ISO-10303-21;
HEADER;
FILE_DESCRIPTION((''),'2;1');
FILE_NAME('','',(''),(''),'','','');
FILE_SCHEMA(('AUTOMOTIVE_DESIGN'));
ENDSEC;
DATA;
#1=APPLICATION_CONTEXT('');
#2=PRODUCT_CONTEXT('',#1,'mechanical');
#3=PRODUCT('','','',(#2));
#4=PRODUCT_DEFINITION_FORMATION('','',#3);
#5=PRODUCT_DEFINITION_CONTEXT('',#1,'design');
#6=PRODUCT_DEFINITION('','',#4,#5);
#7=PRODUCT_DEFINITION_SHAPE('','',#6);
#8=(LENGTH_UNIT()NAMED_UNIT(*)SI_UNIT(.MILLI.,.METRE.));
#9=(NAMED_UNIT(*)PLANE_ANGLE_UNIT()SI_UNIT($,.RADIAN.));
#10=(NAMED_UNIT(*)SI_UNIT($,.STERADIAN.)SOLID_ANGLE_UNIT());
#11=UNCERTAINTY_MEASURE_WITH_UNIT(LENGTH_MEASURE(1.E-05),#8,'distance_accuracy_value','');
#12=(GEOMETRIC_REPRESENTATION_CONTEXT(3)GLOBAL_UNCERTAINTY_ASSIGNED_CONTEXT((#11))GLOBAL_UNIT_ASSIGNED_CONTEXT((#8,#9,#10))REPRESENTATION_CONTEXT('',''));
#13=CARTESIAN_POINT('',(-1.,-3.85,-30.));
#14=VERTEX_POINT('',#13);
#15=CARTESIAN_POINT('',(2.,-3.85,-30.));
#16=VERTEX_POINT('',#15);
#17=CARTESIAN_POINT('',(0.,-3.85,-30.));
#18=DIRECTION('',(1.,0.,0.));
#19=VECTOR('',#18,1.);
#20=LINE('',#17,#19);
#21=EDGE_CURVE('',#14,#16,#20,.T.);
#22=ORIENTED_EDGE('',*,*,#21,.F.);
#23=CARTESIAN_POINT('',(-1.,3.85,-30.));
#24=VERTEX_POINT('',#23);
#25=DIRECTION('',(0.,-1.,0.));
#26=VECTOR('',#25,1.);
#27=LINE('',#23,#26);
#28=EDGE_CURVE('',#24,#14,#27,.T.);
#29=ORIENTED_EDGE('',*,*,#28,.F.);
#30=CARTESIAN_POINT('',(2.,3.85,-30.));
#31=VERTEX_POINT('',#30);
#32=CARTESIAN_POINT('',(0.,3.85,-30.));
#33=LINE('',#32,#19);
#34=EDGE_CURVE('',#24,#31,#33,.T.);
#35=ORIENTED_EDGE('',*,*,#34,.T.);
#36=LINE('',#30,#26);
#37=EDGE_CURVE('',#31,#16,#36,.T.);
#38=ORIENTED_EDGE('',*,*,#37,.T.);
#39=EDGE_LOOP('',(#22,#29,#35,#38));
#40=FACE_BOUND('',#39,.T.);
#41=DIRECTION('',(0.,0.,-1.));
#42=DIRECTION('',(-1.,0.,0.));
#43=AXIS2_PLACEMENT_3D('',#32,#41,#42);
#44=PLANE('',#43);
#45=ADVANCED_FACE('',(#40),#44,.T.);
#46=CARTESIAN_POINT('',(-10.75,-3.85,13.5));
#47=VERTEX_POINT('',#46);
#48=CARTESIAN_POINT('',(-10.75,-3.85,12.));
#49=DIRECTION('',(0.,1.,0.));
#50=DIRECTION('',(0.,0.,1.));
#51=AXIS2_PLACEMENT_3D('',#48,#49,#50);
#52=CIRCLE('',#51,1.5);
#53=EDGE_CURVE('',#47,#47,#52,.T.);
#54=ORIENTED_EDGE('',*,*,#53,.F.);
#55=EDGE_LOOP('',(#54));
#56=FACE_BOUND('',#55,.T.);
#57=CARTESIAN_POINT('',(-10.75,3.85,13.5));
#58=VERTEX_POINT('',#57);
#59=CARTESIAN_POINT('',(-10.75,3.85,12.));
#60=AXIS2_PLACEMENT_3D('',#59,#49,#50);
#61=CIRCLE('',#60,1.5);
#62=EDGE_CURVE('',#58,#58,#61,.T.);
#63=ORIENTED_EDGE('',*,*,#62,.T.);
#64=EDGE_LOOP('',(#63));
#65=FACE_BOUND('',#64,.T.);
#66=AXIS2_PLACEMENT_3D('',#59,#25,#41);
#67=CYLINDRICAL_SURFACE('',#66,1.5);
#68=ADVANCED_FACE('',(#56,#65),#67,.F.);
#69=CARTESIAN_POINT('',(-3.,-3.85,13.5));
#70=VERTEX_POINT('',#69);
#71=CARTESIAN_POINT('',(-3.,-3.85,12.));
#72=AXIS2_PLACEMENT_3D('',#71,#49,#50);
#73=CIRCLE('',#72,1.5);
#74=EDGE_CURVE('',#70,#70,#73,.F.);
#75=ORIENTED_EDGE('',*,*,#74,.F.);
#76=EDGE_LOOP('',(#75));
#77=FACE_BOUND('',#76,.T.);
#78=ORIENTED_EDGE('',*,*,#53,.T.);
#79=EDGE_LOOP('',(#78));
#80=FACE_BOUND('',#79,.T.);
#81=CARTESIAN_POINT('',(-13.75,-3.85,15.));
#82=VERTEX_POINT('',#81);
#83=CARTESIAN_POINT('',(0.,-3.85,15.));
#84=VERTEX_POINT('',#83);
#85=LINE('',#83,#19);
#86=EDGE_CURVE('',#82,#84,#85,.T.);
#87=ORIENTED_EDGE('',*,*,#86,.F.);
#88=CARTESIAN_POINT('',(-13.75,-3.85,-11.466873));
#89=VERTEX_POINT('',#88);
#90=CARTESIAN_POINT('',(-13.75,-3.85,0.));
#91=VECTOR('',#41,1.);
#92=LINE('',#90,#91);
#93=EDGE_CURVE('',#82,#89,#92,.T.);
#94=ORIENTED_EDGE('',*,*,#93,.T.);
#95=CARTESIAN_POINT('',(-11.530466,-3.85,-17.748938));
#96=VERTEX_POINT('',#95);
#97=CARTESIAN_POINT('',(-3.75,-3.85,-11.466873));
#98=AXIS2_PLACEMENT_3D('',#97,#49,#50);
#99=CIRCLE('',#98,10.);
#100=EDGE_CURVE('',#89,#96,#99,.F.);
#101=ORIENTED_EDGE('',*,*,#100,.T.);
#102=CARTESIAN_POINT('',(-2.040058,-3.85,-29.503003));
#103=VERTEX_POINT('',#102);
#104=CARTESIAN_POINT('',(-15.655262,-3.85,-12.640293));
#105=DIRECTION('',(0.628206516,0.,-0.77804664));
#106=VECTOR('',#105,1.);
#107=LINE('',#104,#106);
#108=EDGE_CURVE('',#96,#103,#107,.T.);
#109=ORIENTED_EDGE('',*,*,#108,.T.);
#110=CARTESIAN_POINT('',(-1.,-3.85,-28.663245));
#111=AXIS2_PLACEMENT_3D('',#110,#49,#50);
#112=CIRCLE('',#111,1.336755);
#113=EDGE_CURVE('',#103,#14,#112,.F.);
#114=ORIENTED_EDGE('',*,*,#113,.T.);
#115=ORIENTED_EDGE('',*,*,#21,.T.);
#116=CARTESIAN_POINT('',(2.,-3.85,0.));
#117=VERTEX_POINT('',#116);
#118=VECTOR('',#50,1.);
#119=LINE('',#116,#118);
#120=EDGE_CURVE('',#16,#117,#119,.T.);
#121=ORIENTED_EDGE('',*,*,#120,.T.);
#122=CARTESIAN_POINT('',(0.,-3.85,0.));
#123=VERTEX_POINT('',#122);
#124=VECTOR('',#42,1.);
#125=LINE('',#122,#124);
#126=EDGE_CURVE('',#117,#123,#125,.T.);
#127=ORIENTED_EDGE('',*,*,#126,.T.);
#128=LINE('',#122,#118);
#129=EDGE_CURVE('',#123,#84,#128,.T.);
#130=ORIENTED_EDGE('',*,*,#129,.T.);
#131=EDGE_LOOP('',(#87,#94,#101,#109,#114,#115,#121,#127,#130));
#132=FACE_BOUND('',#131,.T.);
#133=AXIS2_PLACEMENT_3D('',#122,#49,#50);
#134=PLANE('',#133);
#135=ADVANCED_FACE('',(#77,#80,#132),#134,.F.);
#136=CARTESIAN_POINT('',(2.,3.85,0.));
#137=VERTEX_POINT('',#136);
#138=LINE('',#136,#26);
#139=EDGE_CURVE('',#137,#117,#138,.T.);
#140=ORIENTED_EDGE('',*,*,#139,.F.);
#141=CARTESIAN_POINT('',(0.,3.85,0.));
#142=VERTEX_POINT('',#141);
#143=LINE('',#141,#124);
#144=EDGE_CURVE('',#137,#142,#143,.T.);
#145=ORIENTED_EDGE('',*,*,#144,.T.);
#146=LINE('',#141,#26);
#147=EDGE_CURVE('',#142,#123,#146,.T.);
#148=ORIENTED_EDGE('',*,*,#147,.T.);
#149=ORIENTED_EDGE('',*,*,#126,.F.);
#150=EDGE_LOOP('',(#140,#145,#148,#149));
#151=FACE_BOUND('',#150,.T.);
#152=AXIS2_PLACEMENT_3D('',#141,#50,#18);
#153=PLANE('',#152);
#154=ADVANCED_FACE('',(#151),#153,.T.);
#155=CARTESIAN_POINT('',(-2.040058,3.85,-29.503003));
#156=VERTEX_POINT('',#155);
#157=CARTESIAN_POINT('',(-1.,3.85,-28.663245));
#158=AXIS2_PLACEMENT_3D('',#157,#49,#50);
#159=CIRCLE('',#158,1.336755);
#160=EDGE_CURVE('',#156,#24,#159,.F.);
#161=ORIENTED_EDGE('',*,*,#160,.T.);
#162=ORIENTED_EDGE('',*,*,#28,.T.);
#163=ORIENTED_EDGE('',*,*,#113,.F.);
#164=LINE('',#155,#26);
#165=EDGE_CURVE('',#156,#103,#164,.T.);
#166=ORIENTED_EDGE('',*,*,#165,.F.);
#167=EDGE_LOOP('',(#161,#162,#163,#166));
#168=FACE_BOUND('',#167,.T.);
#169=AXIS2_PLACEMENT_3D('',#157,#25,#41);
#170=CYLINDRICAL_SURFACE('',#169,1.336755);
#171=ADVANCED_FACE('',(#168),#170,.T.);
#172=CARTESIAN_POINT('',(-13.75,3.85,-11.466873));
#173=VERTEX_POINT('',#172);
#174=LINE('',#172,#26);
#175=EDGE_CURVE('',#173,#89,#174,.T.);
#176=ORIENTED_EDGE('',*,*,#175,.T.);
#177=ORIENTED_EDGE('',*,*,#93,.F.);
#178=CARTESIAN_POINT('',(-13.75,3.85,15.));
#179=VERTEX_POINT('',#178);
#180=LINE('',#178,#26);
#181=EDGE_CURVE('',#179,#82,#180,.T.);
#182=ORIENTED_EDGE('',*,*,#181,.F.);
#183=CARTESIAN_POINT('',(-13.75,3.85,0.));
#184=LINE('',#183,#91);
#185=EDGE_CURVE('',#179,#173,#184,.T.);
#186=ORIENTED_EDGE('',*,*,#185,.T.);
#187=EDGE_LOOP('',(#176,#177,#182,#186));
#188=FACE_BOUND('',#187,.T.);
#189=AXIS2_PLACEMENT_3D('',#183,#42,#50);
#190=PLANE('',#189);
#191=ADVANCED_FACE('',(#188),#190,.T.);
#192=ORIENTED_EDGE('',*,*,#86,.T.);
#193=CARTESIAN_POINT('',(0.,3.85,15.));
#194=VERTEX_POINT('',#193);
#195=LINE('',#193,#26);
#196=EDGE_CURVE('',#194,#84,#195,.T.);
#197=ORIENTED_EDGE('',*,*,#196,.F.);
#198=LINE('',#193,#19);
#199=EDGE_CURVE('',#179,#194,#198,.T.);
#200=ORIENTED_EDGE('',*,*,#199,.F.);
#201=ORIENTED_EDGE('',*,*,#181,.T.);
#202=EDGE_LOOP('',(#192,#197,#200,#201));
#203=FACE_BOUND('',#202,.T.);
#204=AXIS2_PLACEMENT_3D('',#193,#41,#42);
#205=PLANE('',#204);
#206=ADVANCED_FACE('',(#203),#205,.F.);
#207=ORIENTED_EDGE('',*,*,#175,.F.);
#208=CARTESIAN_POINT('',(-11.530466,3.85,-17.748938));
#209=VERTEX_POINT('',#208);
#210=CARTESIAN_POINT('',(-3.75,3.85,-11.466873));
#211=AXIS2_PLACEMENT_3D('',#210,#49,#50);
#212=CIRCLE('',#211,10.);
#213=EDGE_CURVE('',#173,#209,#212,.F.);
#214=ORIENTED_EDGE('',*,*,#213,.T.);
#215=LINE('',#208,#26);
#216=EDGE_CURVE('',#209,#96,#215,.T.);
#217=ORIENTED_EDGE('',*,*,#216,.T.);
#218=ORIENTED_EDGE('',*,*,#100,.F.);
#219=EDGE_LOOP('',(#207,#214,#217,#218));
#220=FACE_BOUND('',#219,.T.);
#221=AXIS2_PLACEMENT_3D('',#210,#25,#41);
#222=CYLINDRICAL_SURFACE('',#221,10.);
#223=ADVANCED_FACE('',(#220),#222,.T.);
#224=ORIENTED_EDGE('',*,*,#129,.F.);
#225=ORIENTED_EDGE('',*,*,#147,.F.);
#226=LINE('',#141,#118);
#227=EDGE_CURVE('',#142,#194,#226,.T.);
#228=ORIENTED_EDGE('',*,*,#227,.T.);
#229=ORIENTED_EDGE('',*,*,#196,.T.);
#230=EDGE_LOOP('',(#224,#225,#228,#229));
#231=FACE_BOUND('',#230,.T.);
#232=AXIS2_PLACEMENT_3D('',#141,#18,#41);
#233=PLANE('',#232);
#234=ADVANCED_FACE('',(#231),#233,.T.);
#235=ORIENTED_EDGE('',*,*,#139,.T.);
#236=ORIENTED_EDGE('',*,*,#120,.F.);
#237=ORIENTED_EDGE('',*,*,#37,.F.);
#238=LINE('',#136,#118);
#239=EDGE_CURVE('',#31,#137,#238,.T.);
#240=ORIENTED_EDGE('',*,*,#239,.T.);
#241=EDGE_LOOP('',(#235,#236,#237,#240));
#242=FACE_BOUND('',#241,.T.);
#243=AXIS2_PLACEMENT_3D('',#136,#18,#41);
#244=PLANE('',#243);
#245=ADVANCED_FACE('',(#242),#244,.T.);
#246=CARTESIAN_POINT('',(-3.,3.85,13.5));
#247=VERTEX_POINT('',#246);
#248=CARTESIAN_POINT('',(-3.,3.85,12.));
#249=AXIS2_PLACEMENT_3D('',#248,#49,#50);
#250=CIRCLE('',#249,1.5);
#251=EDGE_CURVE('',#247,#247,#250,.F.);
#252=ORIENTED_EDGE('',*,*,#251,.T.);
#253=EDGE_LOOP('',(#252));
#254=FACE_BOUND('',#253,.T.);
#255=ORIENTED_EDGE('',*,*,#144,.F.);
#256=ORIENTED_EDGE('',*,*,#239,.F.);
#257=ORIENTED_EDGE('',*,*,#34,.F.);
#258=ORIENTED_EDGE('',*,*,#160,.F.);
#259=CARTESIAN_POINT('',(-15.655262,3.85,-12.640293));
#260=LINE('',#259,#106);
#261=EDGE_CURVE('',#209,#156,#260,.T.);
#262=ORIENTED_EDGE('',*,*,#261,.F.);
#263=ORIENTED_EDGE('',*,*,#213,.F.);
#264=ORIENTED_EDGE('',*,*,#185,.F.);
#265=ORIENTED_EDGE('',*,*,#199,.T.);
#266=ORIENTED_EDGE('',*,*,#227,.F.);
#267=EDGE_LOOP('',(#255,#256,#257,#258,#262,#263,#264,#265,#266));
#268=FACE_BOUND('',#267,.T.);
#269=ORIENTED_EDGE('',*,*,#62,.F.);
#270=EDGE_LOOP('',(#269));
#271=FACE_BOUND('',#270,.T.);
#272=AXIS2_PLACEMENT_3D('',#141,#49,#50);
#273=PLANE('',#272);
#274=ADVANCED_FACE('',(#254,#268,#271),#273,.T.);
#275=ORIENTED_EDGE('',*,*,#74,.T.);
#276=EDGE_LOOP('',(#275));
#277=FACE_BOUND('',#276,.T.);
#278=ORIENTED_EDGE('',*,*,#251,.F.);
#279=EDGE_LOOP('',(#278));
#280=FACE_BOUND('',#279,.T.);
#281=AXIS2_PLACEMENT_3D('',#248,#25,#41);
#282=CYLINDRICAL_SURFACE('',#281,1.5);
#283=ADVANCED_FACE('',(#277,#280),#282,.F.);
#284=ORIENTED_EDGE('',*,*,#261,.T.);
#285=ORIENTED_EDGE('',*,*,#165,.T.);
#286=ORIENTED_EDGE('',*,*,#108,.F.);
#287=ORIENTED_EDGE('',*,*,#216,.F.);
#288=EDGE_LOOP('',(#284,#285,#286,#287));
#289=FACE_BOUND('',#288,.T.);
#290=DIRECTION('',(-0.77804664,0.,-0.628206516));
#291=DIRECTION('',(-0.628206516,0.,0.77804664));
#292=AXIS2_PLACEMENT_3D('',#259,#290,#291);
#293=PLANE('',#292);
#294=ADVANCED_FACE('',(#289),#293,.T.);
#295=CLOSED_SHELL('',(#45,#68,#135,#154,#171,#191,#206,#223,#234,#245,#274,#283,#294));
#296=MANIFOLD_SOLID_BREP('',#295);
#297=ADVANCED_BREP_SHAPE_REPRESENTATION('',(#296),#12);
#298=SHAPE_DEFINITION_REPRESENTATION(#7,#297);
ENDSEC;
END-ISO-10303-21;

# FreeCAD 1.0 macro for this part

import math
import FreeCAD as App
import Part
import Sketcher
from FreeCAD import Vector

doc = App.newDocument("Part")
params = doc.addObject("Spreadsheet::Sheet", "Params")
for row, (alias, value) in enumerate([
    ("sketch1_diameter", "3 mm"),
    ("sketch1_radius", "10 mm"),
    ("sketch1_width", "2 mm"),
    ("sketch1_width2", "3 mm"),
    ("sketch1_height", "15 mm"),
    ("pad1_length", "7.7 mm"),
], start=1):
    params.set(f"A{row}", alias)
    params.set(f"B{row}", "=" + value)
    params.setAlias(f"B{row}", alias)

body = doc.addObject("PartDesign::Body", "Body")

sketch1 = doc.addObject("Sketcher::SketchObject", "Sketch")
body.addObject(sketch1)
sketch1.AttachmentSupport = (doc.XZ_Plane, [""])
sketch1.MapMode = "FlatFace"
sketch1.addGeometry(Part.LineSegment(Vector(-13.8, 15, 0), Vector(0, 15, 0)), False)
sketch1.addGeometry(Part.LineSegment(Vector(0, 15, 0), Vector(0, 0, 0)), False)
sketch1.addGeometry(Part.LineSegment(Vector(0, 0, 0), Vector(2, 0, 0)), False)
sketch1.addGeometry(Part.LineSegment(Vector(2, 0, 0), Vector(2, -30, 0)), False)
sketch1.addGeometry(Part.LineSegment(Vector(2, -30, 0), Vector(-1, -30, 0)), False)
sketch1.addGeometry(Part.ArcOfCircle(Part.Circle(Vector(-1, -28.7, 0), Vector(0, 0, 1), 1.3), math.radians(-141), math.radians(-90)), False)
sketch1.addGeometry(Part.LineSegment(Vector(-2, -29.5, 0), Vector(-11.5, -17.7, 0)), False)
sketch1.addGeometry(Part.ArcOfCircle(Part.Circle(Vector(-3.7, -11.5, 0), Vector(0, 0, 1), 10), math.radians(180), math.radians(219)), False)
sketch1.addGeometry(Part.LineSegment(Vector(-13.8, -11.5, 0), Vector(-13.8, 15, 0)), False)
sketch1.addGeometry(Part.Circle(Vector(-10.8, 12, 0), Vector(0, 0, 1), 1.5), False)
sketch1.addGeometry(Part.Circle(Vector(-3, 12, 0), Vector(0, 0, 1), 1.5), False)
sketch1.addConstraint(Sketcher.Constraint("Coincident", 0, 2, 1, 1))
sketch1.addConstraint(Sketcher.Constraint("Coincident", 1, 2, 2, 1))
sketch1.addConstraint(Sketcher.Constraint("Coincident", 2, 2, 3, 1))
sketch1.addConstraint(Sketcher.Constraint("Coincident", 3, 2, 4, 1))
sketch1.addConstraint(Sketcher.Constraint("Tangent", 4, 2, 5, 2))
sketch1.addConstraint(Sketcher.Constraint("Tangent", 5, 1, 6, 1))
sketch1.addConstraint(Sketcher.Constraint("Tangent", 6, 2, 7, 2))
sketch1.addConstraint(Sketcher.Constraint("Tangent", 7, 1, 8, 1))
sketch1.addConstraint(Sketcher.Constraint("Coincident", 8, 2, 0, 1))
sketch1.addConstraint(Sketcher.Constraint("Horizontal", 0))
sketch1.addConstraint(Sketcher.Constraint("Vertical", 1))
sketch1.addConstraint(Sketcher.Constraint("Horizontal", 2))
sketch1.addConstraint(Sketcher.Constraint("Vertical", 3))
sketch1.addConstraint(Sketcher.Constraint("Horizontal", 4))
sketch1.addConstraint(Sketcher.Constraint("Vertical", 8))
sketch1.addConstraint(Sketcher.Constraint("Coincident", 1, 2, -1, 1))
sketch1.addConstraint(Sketcher.Constraint("Equal", 9, 10))
sketch1.addConstraint(Sketcher.Constraint("Horizontal", 9, 3, 10, 3))
sketch1.addConstraint(Sketcher.Constraint("Diameter", 9, 3.0))
sketch1.addConstraint(Sketcher.Constraint("Radius", 7, 10.0))
sketch1.addConstraint(Sketcher.Constraint("DistanceX", 2, 1, 2, 2, 2.0))
sketch1.addConstraint(Sketcher.Constraint("DistanceX", 4, 2, 4, 1, 3.0))
sketch1.addConstraint(Sketcher.Constraint("DistanceY", 1, 2, 1, 1, 15.0))
sketch1.addConstraint(Sketcher.Constraint("DistanceY", 3, 2, 3, 1, 30.0))
sketch1.addConstraint(Sketcher.Constraint("DistanceY", -1, 1, 9, 3, 12.0))
sketch1.addConstraint(Sketcher.Constraint("DistanceX", 10, 3, -1, 1, 3.0))
sketch1.addConstraint(Sketcher.Constraint("DistanceX", 9, 3, 7, 3, 7.0))
sketch1.addConstraint(Sketcher.Constraint("DistanceX", 0, 1, 0, 2, 13.75))
sketch1.addConstraint(Sketcher.Constraint("Radius", 5, 1.336755))
sketch1.addConstraint(Sketcher.Constraint("DistanceY", 8, 1, 8, 2, 26.466873))
sketch1.setExpression("Constraints[18]", "Params.sketch1_diameter")
sketch1.setExpression("Constraints[19]", "Params.sketch1_radius")
sketch1.setExpression("Constraints[20]", "Params.sketch1_width")
sketch1.setExpression("Constraints[21]", "Params.sketch1_width2")
sketch1.setExpression("Constraints[22]", "Params.sketch1_height")
pad1 = doc.addObject("PartDesign::Pad", "Pad")
body.addObject(pad1)
pad1.Profile = sketch1
pad1.setExpression("Length", "Params.pad1_length")
pad1.Midplane = True

doc.recompute()
